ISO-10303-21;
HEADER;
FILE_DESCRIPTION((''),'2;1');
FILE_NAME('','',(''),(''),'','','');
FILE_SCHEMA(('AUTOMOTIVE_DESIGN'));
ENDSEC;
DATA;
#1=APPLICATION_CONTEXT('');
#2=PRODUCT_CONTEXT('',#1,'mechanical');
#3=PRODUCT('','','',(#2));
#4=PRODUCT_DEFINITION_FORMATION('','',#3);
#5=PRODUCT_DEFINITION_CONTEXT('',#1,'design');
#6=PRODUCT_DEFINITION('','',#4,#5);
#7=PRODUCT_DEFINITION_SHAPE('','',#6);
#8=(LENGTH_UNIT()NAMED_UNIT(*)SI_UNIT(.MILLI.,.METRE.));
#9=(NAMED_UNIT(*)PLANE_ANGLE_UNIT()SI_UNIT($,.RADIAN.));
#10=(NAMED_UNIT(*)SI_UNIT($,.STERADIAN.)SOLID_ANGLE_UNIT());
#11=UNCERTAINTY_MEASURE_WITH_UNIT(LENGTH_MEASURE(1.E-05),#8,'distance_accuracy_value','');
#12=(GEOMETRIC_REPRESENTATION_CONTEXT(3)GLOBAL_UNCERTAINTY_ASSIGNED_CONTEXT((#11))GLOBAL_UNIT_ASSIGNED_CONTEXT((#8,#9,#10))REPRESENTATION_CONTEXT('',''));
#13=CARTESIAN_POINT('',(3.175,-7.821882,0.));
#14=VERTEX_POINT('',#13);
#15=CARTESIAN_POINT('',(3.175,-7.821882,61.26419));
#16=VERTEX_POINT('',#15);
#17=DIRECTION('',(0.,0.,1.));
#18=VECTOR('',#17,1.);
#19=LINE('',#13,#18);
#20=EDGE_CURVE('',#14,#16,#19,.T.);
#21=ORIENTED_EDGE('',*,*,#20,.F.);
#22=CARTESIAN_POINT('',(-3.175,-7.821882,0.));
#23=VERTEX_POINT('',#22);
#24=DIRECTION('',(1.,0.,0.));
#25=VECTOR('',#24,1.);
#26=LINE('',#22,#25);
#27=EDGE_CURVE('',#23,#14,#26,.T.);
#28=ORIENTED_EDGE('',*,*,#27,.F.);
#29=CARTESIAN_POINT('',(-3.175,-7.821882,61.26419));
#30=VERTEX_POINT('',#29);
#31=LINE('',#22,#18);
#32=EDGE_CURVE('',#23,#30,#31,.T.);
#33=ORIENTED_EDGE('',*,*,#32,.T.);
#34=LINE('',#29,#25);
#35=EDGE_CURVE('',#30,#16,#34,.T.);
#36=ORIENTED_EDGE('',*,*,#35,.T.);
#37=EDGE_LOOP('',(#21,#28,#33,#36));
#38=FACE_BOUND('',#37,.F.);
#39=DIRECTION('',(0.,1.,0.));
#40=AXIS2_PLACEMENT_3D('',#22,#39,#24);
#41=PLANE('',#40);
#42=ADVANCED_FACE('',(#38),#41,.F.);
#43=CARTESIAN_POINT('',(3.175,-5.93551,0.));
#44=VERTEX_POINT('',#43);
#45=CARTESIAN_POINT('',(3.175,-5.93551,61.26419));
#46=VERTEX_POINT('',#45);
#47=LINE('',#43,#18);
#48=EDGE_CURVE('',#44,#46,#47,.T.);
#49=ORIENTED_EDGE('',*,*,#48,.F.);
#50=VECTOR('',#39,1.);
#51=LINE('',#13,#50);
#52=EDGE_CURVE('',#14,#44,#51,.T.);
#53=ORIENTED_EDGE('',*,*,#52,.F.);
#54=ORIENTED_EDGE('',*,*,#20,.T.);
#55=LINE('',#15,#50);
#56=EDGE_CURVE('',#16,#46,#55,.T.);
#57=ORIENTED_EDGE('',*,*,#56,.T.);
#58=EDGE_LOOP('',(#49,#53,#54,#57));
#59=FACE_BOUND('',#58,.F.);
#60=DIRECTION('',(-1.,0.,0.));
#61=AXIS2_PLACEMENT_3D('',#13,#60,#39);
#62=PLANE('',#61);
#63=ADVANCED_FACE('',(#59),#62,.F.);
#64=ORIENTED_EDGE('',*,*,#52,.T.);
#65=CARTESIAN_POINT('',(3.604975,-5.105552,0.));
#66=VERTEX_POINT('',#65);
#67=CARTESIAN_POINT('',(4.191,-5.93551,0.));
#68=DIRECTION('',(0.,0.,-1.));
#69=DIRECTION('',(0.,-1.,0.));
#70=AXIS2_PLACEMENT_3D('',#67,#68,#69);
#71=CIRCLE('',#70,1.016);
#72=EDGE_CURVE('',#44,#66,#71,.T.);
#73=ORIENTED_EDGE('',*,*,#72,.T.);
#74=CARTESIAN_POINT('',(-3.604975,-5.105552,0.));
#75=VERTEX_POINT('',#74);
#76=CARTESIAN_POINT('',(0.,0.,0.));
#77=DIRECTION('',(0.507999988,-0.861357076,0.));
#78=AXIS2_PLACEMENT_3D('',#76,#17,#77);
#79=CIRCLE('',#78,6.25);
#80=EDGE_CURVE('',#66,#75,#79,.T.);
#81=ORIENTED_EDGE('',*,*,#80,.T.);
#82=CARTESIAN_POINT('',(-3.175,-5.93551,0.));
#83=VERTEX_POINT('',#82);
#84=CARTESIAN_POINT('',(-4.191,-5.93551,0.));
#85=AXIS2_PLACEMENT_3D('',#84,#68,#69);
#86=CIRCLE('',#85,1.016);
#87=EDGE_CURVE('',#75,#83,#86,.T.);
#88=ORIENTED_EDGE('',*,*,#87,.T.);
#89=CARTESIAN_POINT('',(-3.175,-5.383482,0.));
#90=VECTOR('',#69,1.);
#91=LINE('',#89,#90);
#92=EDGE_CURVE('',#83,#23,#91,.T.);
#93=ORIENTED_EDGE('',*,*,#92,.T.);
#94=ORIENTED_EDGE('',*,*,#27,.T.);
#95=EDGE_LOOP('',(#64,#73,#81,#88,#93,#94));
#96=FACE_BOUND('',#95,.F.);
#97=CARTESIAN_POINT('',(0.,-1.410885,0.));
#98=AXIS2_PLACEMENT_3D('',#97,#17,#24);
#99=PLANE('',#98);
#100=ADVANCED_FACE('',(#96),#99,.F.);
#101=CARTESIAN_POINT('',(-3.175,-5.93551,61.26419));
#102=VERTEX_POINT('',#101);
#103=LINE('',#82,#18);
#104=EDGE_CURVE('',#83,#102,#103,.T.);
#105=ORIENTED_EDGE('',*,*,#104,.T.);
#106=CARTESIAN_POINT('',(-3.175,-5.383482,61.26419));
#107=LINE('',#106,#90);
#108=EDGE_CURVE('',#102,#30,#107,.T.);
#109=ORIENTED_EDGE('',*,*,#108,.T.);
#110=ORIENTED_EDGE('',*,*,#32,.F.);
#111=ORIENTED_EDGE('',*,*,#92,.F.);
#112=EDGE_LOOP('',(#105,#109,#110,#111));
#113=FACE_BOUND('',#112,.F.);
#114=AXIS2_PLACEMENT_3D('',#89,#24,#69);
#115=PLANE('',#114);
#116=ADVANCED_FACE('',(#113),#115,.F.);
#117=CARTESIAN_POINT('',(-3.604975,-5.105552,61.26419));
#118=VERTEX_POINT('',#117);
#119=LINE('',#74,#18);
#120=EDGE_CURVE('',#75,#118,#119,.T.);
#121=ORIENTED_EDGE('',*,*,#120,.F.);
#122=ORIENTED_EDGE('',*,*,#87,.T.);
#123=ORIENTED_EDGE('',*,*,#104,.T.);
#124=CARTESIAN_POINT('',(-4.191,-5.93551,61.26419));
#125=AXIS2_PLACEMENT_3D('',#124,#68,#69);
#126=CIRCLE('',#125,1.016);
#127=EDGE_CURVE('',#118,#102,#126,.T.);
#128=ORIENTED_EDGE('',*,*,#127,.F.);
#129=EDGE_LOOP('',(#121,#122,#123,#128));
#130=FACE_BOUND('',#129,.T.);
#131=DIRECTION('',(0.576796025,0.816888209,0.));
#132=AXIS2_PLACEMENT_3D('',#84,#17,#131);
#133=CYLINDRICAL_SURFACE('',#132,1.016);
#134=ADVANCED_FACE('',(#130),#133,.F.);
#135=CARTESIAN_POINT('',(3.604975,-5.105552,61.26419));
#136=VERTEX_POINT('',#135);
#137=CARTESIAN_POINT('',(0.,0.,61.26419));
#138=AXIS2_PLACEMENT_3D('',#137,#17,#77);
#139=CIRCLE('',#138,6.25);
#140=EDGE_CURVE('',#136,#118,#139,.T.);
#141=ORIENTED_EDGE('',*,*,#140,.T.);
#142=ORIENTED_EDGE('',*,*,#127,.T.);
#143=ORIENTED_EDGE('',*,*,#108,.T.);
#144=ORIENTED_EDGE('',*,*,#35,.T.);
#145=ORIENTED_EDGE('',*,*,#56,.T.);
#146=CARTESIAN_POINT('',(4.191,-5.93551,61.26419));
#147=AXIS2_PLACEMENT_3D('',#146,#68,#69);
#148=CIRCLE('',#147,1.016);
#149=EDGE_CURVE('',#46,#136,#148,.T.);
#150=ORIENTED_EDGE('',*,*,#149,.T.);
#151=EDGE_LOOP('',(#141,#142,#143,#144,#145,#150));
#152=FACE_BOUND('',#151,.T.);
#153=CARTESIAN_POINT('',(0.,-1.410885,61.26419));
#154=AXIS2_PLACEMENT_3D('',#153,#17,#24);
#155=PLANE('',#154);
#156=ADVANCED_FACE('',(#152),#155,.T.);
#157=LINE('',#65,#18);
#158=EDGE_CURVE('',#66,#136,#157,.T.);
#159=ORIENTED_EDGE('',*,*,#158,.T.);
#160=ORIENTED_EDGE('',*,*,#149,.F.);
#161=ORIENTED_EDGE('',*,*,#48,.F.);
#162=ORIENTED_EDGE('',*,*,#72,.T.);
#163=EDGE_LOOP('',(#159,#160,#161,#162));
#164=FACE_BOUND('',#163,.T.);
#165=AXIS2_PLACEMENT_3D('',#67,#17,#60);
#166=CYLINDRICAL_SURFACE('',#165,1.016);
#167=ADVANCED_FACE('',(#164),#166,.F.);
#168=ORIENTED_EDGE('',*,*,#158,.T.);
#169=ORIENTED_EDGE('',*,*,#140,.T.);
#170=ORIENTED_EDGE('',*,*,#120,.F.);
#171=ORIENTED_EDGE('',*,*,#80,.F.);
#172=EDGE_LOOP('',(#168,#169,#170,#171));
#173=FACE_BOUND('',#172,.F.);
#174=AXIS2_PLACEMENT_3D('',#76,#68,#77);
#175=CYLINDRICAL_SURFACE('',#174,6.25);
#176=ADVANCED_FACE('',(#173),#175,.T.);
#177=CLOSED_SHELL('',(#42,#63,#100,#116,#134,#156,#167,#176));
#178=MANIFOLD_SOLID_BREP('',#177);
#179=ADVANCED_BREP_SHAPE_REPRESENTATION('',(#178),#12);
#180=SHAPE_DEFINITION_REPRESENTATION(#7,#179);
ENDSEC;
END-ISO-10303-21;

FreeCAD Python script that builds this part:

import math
import FreeCAD as App
import Part
import Sketcher
from FreeCAD import Vector
Q = App.Units.Quantity


def edges_at(feature, points):
    """Names of the edges that pass closest to the given points."""
    edges = feature.Shape.Edges
    near = lambda p: min(range(len(edges)), key=lambda i: edges[i].distToShape(Part.Vertex(*p))[0])
    return sorted({f"Edge{near(p) + 1}" for p in points})

doc = App.newDocument("Part")
params = doc.addObject("Spreadsheet::Sheet", "Params")
for row, (alias, value) in enumerate([
    ("sketch1_width", "0.25 in"),
    ("sketch1_height", "0.096 in"),
    ("pad1_length", "61.26419 mm"),
    ("fillet_radius", "0.04 in"),
], start=1):
    params.set(f"A{row}", alias)
    params.set(f"B{row}", "=" + value)
    params.setAlias(f"B{row}", alias)

body = doc.addObject("PartDesign::Body", "Body")

sketch1 = doc.addObject("Sketcher::SketchObject", "Sketch")
body.addObject(sketch1)
sketch1.AttachmentSupport = (doc.XY_Plane, [""])
sketch1.MapMode = "FlatFace"
sketch1.addGeometry([
    Part.LineSegment(Vector(-3.2, -7.8, 0), Vector(3.2, -7.8, 0)),
    Part.LineSegment(Vector(3.2, -7.8, 0), Vector(3.2, -5.4, 0)),
    Part.ArcOfCircle(Part.Circle(Vector(0, 0, 0), Vector(0, 0, 1), 6.3), math.radians(-59), math.radians(239)),
    Part.LineSegment(Vector(-3.2, -5.4, 0), Vector(-3.2, -7.8, 0)),
], False)
sketch1.addConstraint([
    Sketcher.Constraint("Coincident", 0, 2, 1, 1),
    Sketcher.Constraint("Coincident", 1, 2, 2, 1),
    Sketcher.Constraint("Coincident", 2, 2, 3, 1),
    Sketcher.Constraint("Coincident", 3, 2, 0, 1),
    Sketcher.Constraint("Horizontal", 0),
    Sketcher.Constraint("Vertical", 1),
    Sketcher.Constraint("Vertical", 3),
    Sketcher.Constraint("Coincident", 2, 3, -1, 1),
    Sketcher.Constraint("Horizontal", 1, 2, 2, 2),
    Sketcher.Constraint("DistanceX", 0, 1, 0, 2, Q("0.25 in")),
    Sketcher.Constraint("DistanceY", 1, 1, 1, 2, Q("0.096 in")),
    Sketcher.Constraint("Radius", 2, 6.25),
])
sketch1.setExpression("Constraints[9]", "Params.sketch1_width")
sketch1.setExpression("Constraints[10]", "Params.sketch1_height")
pad1 = doc.addObject("PartDesign::Pad", "Pad")
body.addObject(pad1)
pad1.Profile = sketch1
pad1.setExpression("Length", "Params.pad1_length")
doc.recompute()

fillet = doc.addObject("PartDesign::Fillet", "Fillet")
body.addObject(fillet)
fillet.Base = (pad1, edges_at(pad1, [(-3.175, -5.383, 30.632), (3.175, -5.383, 30.632)]))
fillet.setExpression("Radius", "Params.fillet_radius")

doc.recompute()
